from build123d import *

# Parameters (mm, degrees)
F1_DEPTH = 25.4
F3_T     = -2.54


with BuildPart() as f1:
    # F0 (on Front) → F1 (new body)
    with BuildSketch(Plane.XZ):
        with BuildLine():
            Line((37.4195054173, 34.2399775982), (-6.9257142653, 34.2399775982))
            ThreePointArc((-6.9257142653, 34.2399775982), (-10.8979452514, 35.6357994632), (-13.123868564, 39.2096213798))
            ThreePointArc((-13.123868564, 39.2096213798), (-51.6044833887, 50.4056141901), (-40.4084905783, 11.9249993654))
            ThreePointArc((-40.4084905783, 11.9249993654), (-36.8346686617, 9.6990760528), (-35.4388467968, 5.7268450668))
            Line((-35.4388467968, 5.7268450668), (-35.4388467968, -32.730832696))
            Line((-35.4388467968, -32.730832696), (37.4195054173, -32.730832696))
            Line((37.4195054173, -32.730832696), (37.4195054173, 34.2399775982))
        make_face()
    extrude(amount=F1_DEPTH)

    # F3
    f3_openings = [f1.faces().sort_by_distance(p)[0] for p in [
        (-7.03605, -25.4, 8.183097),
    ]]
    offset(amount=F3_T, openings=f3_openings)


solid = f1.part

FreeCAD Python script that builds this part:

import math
import FreeCAD as App
import Part
import Sketcher

V = App.Vector
Q = App.Units.Quantity


def faces_at(feature, points):
    """Names of the faces that lie closest to the given points."""
    faces = feature.Shape.Faces
    near = lambda p: min(range(len(faces)), key=lambda i: faces[i].distToShape(Part.Vertex(*p))[0])
    return sorted({f"Face{near(p) + 1}" for p in points})

doc = App.newDocument("Part")
body = doc.addObject("PartDesign::Body", "Body")

# Sketch on XZ plane
sketch1 = doc.addObject("Sketcher::SketchObject", "Sketch")
body.addObject(sketch1)
sketch1.AttachmentSupport = (doc.XZ_Plane, [""])
sketch1.MapMode = "FlatFace"
sketch1.addGeometry([
    Part.LineSegment(V(37.419505, 34.239978, 0), V(-6.925714, 34.239978, 0)),  # 0
    Part.ArcOfCircle(Part.Circle(V(-6.925714, 40.589978, 0), V(0, 0, 1), 6.35), math.radians(-167.444868), math.radians(-90)),  # 1
    Part.ArcOfCircle(Part.Circle(V(-35.438847, 34.239978, 0), V(0, 0, 1), 22.861663), math.radians(12.555132), math.radians(257.444868)),  # 2
    Part.ArcOfCircle(Part.Circle(V(-41.788847, 5.726845, 0), V(0, 0, 1), 6.35), math.radians(0), math.radians(77.444868)),  # 3
    Part.LineSegment(V(-35.438847, 5.726845, 0), V(-35.438847, -32.730833, 0)),  # 4
    Part.LineSegment(V(-35.438847, -32.730833, 0), V(37.419505, -32.730833, 0)),  # 5
    Part.LineSegment(V(37.419505, -32.730833, 0), V(37.419505, 34.239978, 0)),  # 6
], False)
sketch1.addConstraint([
    Sketcher.Constraint("Tangent", 0, 2, 1, 2),
    Sketcher.Constraint("Tangent", 1, 1, 2, 1),
    Sketcher.Constraint("Tangent", 2, 2, 3, 2),
    Sketcher.Constraint("Tangent", 3, 1, 4, 1),
    Sketcher.Constraint("Coincident", 4, 2, 5, 1),
    Sketcher.Constraint("Coincident", 5, 2, 6, 1),
    Sketcher.Constraint("Coincident", 6, 2, 0, 1),
    Sketcher.Constraint("Horizontal", 0),
    Sketcher.Constraint("Vertical", 4),
    Sketcher.Constraint("Horizontal", 5),
    Sketcher.Constraint("Vertical", 6),
    Sketcher.Constraint("Equal", 1, 3),
    Sketcher.Constraint("Horizontal", 2, 3, 0, 2),
    Sketcher.Constraint("Vertical", 2, 3, 3, 1),
    Sketcher.Constraint("Radius", 1, Q("0.25 in")),
    Sketcher.Constraint("Radius", 2, 22.861663),
    Sketcher.Constraint("DistanceX", 0, 2, 0, 1, 44.34522),
    Sketcher.Constraint("DistanceY", 6, 1, 6, 2, 66.97081),
    Sketcher.Constraint("DistanceY", -1, 1, 2, 2, 11.924999),
    Sketcher.Constraint("DistanceX", 1, 1, -1, 1, 13.123869),
])
pad1 = doc.addObject("PartDesign::Pad", "Pad")
body.addObject(pad1)
pad1.Profile = sketch1
pad1.Length = Q("1 in")
doc.recompute()

thickness = doc.addObject("PartDesign::Thickness", "Thickness")
body.addObject(thickness)
thickness.Base = (pad1, faces_at(pad1, [(-10.441, -25.4, 12.185)]))
thickness.Value = Q("0.1 in")
thickness.Reversed = True
thickness.Join = "Arc"

doc.recompute()
